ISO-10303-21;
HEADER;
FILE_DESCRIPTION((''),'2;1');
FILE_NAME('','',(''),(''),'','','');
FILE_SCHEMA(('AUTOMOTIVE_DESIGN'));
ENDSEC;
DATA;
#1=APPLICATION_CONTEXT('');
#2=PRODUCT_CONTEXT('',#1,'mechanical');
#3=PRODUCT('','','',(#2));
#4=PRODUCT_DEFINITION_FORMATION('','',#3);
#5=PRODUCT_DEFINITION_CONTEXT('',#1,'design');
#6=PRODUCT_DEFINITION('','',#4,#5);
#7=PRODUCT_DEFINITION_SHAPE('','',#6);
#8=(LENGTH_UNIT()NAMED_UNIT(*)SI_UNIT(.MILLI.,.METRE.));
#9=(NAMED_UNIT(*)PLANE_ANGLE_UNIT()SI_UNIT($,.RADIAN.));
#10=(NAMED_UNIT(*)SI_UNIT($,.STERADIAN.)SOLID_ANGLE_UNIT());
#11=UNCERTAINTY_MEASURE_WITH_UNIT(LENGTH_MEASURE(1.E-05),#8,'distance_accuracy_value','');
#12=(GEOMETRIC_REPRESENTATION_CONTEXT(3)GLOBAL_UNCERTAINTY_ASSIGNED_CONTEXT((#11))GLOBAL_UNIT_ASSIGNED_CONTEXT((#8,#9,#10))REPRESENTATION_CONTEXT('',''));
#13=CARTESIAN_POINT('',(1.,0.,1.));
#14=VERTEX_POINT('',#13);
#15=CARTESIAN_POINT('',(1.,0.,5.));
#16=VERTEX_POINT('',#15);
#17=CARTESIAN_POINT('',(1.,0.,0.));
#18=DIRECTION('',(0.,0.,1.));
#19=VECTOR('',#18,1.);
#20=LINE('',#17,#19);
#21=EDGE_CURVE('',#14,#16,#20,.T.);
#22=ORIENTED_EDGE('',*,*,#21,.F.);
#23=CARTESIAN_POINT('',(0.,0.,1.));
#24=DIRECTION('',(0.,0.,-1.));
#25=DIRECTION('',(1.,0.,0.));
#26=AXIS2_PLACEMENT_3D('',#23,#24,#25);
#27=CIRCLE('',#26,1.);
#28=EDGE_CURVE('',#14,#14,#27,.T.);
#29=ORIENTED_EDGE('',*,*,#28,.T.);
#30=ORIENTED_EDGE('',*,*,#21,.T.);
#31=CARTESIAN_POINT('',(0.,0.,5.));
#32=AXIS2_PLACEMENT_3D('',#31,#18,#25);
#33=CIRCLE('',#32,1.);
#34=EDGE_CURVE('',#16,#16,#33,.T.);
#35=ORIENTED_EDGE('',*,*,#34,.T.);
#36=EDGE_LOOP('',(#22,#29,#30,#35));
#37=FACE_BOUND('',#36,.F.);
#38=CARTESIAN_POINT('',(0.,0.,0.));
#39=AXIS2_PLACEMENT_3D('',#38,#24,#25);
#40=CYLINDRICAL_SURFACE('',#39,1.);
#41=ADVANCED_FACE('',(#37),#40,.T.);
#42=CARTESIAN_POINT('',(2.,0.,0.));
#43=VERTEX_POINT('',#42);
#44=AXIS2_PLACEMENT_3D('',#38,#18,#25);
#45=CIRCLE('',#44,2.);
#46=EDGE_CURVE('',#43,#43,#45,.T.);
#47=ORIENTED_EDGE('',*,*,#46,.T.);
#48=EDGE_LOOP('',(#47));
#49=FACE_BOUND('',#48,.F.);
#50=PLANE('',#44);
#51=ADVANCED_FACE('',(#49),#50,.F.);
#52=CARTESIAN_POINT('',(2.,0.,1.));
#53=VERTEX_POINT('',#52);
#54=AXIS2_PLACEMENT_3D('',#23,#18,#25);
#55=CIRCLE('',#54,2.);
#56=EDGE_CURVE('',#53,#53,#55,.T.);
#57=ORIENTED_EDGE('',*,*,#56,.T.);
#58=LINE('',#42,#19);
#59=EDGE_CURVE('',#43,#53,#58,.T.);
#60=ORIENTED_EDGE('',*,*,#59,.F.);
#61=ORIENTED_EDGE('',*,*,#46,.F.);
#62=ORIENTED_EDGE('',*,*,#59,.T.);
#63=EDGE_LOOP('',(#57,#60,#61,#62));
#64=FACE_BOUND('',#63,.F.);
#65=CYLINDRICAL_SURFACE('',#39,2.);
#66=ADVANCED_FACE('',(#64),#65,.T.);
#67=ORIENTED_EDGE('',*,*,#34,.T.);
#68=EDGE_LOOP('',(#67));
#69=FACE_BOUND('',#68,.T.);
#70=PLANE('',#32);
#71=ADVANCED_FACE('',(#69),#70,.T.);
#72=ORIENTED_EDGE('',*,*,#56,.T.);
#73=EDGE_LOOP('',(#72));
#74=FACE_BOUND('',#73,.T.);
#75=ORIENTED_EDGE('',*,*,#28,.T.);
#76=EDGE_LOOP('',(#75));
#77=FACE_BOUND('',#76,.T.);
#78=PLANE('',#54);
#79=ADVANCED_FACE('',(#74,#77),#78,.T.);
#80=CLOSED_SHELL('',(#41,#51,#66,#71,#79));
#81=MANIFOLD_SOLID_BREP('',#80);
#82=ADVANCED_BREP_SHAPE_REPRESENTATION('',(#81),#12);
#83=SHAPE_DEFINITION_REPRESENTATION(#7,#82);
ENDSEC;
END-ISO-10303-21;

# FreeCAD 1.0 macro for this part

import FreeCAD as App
import Part
import Sketcher
from FreeCAD import Vector

doc = App.newDocument("Part")
body = doc.addObject("PartDesign::Body", "Body")

# Sketch on XY plane
sketch1 = body.newObject("Sketcher::SketchObject", "Sketch")
sketch1.AttachmentSupport = (doc.getObject("XY_Plane"), [""])
sketch1.MapMode = "FlatFace"
sketch1.addGeometry(Part.Circle(Vector(0, 0, 0), Vector(0, 0, 1), 2), False)
sketch1.addConstraint(Sketcher.Constraint("Coincident", 0, 3, -1, 1))
sketch1.addConstraint(Sketcher.Constraint("Diameter", 0, 4.0))
pad1 = body.newObject("PartDesign::Pad", "Pad")
pad1.Profile = sketch1
pad1.Length = 1

# Sketch on XY plane
sketch2 = body.newObject("Sketcher::SketchObject", "Sketch001")
sketch2.AttachmentSupport = (doc.getObject("XY_Plane"), [""])
sketch2.MapMode = "FlatFace"
sketch2.addGeometry(Part.Circle(Vector(0, 0, 0), Vector(0, 0, 1), 1), False)
sketch2.addConstraint(Sketcher.Constraint("Coincident", 0, 3, -1, 1))
sketch2.addConstraint(Sketcher.Constraint("Diameter", 0, 2.0))
pad2 = body.newObject("PartDesign::Pad", "Pad001")
pad2.Profile = sketch2
pad2.Length = 5

doc.recompute()
